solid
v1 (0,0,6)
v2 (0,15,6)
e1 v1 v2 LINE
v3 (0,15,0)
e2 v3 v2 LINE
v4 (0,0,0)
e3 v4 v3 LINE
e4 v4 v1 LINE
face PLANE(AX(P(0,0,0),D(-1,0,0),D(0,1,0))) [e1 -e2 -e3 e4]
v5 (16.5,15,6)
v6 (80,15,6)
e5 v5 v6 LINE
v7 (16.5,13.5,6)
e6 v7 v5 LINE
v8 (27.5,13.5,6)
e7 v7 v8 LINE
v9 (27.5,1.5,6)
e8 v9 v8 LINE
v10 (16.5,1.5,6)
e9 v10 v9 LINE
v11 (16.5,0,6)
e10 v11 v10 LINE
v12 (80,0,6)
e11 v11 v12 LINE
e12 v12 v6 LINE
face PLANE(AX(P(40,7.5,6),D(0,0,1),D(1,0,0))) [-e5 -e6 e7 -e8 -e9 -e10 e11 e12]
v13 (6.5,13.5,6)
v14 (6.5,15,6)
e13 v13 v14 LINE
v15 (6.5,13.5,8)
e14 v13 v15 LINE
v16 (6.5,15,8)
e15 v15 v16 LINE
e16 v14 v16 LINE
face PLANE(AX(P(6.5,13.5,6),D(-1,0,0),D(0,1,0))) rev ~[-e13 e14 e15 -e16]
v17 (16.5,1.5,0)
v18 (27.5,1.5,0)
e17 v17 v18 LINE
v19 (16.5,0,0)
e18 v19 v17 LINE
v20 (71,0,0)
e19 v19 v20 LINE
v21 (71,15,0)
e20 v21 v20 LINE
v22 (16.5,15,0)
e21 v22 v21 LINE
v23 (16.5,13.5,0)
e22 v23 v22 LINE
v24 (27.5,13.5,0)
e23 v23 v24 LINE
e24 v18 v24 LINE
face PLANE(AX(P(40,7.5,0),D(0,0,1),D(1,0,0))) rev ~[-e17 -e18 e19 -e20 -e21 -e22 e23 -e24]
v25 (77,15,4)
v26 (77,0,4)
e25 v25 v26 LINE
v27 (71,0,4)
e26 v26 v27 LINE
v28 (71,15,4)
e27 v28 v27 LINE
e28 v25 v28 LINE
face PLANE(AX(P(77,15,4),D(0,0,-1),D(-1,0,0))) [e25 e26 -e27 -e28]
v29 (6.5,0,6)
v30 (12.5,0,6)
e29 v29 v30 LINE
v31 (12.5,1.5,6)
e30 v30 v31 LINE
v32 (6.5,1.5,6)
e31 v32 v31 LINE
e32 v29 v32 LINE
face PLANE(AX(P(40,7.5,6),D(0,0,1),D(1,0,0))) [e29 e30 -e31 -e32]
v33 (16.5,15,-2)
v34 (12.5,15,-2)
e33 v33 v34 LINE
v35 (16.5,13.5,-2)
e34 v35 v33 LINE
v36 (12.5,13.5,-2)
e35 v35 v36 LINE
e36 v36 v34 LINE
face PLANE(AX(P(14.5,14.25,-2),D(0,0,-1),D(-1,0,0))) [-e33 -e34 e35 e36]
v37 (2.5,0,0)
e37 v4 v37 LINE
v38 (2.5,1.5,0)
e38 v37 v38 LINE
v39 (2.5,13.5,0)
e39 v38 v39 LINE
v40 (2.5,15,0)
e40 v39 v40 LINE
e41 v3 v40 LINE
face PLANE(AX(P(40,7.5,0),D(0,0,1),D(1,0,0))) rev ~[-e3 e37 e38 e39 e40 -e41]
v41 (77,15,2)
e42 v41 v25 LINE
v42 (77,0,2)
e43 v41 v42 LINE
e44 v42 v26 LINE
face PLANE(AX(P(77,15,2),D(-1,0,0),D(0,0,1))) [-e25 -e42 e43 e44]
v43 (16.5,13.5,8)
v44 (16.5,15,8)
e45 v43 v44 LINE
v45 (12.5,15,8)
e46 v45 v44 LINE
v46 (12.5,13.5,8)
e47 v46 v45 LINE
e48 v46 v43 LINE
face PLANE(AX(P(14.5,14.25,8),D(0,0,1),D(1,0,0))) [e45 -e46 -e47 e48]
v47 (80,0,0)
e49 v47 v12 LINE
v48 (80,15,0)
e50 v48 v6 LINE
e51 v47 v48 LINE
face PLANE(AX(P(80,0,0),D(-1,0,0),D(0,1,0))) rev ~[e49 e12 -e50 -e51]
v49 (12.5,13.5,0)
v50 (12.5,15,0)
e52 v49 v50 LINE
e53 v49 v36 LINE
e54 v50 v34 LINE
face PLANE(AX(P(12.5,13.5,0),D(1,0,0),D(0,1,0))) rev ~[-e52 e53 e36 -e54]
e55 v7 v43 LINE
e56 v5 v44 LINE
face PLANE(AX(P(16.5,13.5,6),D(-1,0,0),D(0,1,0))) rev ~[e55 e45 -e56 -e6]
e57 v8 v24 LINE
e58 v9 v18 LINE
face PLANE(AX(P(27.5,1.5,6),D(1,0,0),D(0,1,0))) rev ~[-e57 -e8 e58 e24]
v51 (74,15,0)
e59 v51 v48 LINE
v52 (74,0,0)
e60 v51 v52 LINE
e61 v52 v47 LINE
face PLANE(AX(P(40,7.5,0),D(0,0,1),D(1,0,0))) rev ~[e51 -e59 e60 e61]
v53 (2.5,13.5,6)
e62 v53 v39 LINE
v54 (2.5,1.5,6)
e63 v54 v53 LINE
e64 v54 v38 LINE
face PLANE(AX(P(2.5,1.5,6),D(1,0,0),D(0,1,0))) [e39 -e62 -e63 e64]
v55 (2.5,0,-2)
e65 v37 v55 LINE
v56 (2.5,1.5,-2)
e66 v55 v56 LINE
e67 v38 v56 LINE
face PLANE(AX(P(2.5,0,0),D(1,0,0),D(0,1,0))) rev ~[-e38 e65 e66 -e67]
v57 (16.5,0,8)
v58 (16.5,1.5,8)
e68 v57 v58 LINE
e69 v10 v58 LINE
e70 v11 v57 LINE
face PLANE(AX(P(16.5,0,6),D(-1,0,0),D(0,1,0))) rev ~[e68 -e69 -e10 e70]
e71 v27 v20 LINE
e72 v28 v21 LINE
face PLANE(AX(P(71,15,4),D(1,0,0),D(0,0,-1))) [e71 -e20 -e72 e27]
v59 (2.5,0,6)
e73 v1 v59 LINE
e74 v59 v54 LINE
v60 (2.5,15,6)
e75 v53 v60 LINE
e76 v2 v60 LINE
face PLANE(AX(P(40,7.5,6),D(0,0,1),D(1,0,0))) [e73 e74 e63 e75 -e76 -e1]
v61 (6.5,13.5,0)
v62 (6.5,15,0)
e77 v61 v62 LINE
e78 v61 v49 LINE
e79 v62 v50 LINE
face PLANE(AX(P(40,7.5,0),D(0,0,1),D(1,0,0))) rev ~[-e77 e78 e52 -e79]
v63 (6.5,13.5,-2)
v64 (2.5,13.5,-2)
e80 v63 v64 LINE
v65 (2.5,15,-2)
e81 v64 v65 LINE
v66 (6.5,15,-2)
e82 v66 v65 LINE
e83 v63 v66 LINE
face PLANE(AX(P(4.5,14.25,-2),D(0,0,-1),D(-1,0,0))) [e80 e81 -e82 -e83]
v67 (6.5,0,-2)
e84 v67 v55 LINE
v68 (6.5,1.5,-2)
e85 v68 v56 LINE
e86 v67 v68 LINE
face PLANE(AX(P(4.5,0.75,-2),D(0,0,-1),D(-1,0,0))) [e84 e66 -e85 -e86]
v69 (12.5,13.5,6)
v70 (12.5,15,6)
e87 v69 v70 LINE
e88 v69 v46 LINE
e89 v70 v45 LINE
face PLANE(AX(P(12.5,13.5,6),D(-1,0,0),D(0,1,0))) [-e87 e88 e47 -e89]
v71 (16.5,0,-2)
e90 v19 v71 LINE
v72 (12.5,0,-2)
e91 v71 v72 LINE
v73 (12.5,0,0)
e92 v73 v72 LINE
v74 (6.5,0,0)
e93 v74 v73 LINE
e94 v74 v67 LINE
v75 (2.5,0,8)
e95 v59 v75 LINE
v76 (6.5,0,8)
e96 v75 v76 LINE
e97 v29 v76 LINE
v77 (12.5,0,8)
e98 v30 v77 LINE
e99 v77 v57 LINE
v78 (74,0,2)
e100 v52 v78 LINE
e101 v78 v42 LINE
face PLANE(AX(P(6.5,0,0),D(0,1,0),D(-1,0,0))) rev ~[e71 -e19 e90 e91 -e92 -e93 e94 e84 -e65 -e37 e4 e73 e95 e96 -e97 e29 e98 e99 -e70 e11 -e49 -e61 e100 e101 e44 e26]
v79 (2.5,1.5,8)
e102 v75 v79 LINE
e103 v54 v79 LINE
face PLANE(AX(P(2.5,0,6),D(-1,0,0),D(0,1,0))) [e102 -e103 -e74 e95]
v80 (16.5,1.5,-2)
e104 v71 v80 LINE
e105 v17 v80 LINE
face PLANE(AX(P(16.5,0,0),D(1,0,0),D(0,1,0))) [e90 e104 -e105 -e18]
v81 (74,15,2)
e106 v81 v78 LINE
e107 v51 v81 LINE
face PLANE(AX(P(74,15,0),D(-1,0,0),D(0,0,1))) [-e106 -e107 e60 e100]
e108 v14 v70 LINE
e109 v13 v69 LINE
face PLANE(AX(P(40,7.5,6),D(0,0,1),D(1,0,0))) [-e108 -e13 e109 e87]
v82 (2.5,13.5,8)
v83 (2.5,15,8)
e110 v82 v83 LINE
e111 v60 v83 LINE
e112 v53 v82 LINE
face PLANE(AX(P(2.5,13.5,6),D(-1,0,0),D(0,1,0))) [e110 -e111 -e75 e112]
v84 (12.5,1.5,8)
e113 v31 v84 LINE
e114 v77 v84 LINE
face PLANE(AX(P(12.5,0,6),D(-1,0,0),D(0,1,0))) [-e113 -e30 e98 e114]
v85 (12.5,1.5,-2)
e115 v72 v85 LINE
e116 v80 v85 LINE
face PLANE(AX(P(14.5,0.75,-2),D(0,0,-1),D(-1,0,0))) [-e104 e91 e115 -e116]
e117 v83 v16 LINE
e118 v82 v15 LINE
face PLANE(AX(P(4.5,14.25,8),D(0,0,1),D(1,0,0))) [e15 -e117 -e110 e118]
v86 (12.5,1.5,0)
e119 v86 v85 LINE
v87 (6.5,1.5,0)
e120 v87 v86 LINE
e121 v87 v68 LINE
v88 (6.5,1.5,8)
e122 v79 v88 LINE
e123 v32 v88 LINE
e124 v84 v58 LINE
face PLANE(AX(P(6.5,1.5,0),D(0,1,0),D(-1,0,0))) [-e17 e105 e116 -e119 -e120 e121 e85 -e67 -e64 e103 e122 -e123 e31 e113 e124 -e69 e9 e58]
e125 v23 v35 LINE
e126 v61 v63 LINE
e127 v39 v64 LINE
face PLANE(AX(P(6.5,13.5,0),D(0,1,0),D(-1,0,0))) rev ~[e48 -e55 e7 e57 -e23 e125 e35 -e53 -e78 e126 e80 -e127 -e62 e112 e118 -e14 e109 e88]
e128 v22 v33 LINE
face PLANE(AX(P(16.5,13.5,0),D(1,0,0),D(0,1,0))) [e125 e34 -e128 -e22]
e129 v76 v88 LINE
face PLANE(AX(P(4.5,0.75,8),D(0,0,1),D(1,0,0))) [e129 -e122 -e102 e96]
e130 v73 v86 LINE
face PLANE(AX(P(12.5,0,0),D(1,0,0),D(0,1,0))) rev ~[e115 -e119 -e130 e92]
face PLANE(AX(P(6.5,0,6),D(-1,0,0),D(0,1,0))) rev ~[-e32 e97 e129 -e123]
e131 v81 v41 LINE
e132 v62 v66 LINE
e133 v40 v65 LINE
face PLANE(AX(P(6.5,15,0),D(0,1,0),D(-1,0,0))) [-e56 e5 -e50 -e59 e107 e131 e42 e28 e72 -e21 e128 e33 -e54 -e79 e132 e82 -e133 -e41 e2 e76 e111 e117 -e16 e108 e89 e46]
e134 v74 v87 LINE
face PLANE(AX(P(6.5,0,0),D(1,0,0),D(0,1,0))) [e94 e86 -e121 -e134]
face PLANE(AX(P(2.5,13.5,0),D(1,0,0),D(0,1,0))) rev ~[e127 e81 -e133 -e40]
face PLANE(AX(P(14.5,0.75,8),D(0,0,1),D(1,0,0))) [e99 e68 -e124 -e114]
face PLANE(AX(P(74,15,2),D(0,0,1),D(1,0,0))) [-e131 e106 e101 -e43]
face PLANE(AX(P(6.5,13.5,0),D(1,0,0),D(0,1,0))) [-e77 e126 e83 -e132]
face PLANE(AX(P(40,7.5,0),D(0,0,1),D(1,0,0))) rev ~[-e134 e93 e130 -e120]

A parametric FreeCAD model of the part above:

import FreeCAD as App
import Part
import Sketcher

V = App.Vector


def add_polygon(sketch, points):
    """Adds a closed chain of lines whose ends are joined by coincident constraints."""
    first, n = sketch.GeometryCount, len(points)
    for a, b in zip(points, points[1:] + points[:1]):
        sketch.addGeometry(Part.LineSegment(App.Vector(*a, 0), App.Vector(*b, 0)), False)
    for i in range(n):
        sketch.addConstraint(Sketcher.Constraint("Coincident", first + i, 2, first + (i + 1) % n, 1))

doc = App.newDocument("Part")
params = doc.addObject("Spreadsheet::Sheet", "Params")
for row, (alias, value) in enumerate([
    ("sketch1_width", "80 mm"),
    ("sketch1_height", "15 mm"),
    ("pad1_length", "6 mm"),
    ("sketch2_width", "3 mm"),
    ("sketch2_height", "2 mm"),
    ("sketch3_width", "25 mm"),
    ("sketch3_height", "12 mm"),
    ("sketch4_width", "4 mm"),
    ("sketch4_height", "1.5 mm"),
    ("pad2_length", "2 mm"),
    ("sketch5_width", "4 mm"),
    ("sketch5_height", "1.5 mm"),
    ("pad3_length", "2 mm"),
    ("sketch6_width", "4 mm"),
    ("sketch6_height", "1.5 mm"),
    ("pad4_length", "2 mm"),
    ("sketch7_width", "4 mm"),
    ("sketch7_height", "1.5 mm"),
    ("pad5_length", "2 mm"),
    ("sketch8_width", "4 mm"),
    ("sketch8_height", "1.5 mm"),
    ("pad6_length", "2 mm"),
    ("sketch9_width", "4 mm"),
    ("sketch9_height", "1.5 mm"),
    ("pad7_length", "2 mm"),
    ("sketch10_width", "4 mm"),
    ("sketch10_height", "1.5 mm"),
    ("pad8_length", "2 mm"),
    ("sketch11_width", "4 mm"),
    ("sketch11_height", "1.5 mm"),
    ("pad9_length", "2 mm"),
], start=1):
    params.set(f"A{row}", alias)
    params.set(f"B{row}", "=" + value)
    params.setAlias(f"B{row}", alias)

body = doc.addObject("PartDesign::Body", "Body")

sketch1 = doc.addObject("Sketcher::SketchObject", "Sketch")
body.addObject(sketch1)
sketch1.AttachmentSupport = (doc.XY_Plane, [""])
sketch1.MapMode = "FlatFace"
add_polygon(sketch1, [(0, 15), (0, 0), (80, 0), (80, 15)])
sketch1.addConstraint([
    Sketcher.Constraint("Vertical", 0),
    Sketcher.Constraint("Horizontal", 1),
    Sketcher.Constraint("Vertical", 2),
    Sketcher.Constraint("Horizontal", 3),
    Sketcher.Constraint("Coincident", 0, 2, -1, 1),
    Sketcher.Constraint("DistanceX", 1, 1, 1, 2, 80.0),
    Sketcher.Constraint("DistanceY", 0, 2, 0, 1, 15.0),
])
sketch1.setExpression("Constraints[9]", "Params.sketch1_width")
sketch1.setExpression("Constraints[10]", "Params.sketch1_height")
pad1 = doc.addObject("PartDesign::Pad", "Pad")
body.addObject(pad1)
pad1.Profile = sketch1
pad1.setExpression("Length", "Params.pad1_length")

sketch2 = doc.addObject("Sketcher::SketchObject", "Sketch001")
body.addObject(sketch2)
sketch2.AttachmentSupport = (doc.XZ_Plane, [""])
sketch2.MapMode = "FlatFace"
sketch2.AttachmentOffset = App.Placement(V(0, 0, -15), App.Rotation())
add_polygon(sketch2, [(74, 2), (74, 0), (71, 0), (71, 4), (77, 4), (77, 2)])
sketch2.addConstraint([
    Sketcher.Constraint("Vertical", 0),
    Sketcher.Constraint("Horizontal", 1),
    Sketcher.Constraint("Vertical", 2),
    Sketcher.Constraint("Horizontal", 3),
    Sketcher.Constraint("Vertical", 4),
    Sketcher.Constraint("Horizontal", 5),
    Sketcher.Constraint("PointOnObject", 0, 2, -1),
    Sketcher.Constraint("Equal", 1, 5),
    Sketcher.Constraint("Equal", 0, 4),
    Sketcher.Constraint("DistanceX", 1, 2, 1, 1, 3.0),
    Sketcher.Constraint("DistanceY", 0, 2, 0, 1, 2.0),
    Sketcher.Constraint("DistanceX", -1, 1, 0, 2, 74.0),
])
sketch2.setExpression("Constraints[15]", "Params.sketch2_width")
sketch2.setExpression("Constraints[16]", "Params.sketch2_height")
pocket1 = doc.addObject("PartDesign::Pocket", "Pocket")
body.addObject(pocket1)
pocket1.Profile = sketch2
pocket1.Type = "ThroughAll"
pocket1.Reversed = True

sketch3 = doc.addObject("Sketcher::SketchObject", "Sketch002")
body.addObject(sketch3)
sketch3.AttachmentSupport = (doc.XY_Plane, [""])
sketch3.MapMode = "FlatFace"
sketch3.AttachmentOffset = App.Placement(V(0, 0, 6), App.Rotation())
add_polygon(sketch3, [(2.5, 13.5), (2.5, 1.5), (27.5, 1.5), (27.5, 13.5)])
sketch3.addConstraint([
    Sketcher.Constraint("Vertical", 0),
    Sketcher.Constraint("Horizontal", 1),
    Sketcher.Constraint("Vertical", 2),
    Sketcher.Constraint("Horizontal", 3),
    Sketcher.Constraint("DistanceX", 1, 1, 1, 2, 25.0),
    Sketcher.Constraint("DistanceY", 0, 2, 0, 1, 12.0),
    Sketcher.Constraint("DistanceX", -1, 1, 0, 2, 2.5),
    Sketcher.Constraint("DistanceY", -1, 1, 0, 2, 1.5),
])
sketch3.setExpression("Constraints[8]", "Params.sketch3_width")
sketch3.setExpression("Constraints[9]", "Params.sketch3_height")
pocket2 = doc.addObject("PartDesign::Pocket", "Pocket001")
body.addObject(pocket2)
pocket2.Profile = sketch3
pocket2.Type = "ThroughAll"

sketch4 = doc.addObject("Sketcher::SketchObject", "Sketch003")
body.addObject(sketch4)
sketch4.AttachmentSupport = (doc.XY_Plane, [""])
sketch4.MapMode = "FlatFace"
sketch4.AttachmentOffset = App.Placement(V(0, 0, 6), App.Rotation())
add_polygon(sketch4, [(2.5, 15), (2.5, 13.5), (6.5, 13.5), (6.5, 15)])
sketch4.addConstraint([
    Sketcher.Constraint("Vertical", 0),
    Sketcher.Constraint("Horizontal", 1),
    Sketcher.Constraint("Vertical", 2),
    Sketcher.Constraint("Horizontal", 3),
    Sketcher.Constraint("DistanceX", 1, 1, 1, 2, 4.0),
    Sketcher.Constraint("DistanceY", 0, 2, 0, 1, 1.5),
    Sketcher.Constraint("DistanceY", -1, 1, 2, 2, 15.0),
    Sketcher.Constraint("DistanceX", -1, 1, 0, 2, 2.5),
])
sketch4.setExpression("Constraints[8]", "Params.sketch4_width")
sketch4.setExpression("Constraints[9]", "Params.sketch4_height")
pad2 = doc.addObject("PartDesign::Pad", "Pad001")
body.addObject(pad2)
pad2.Profile = sketch4
pad2.setExpression("Length", "Params.pad2_length")

sketch5 = doc.addObject("Sketcher::SketchObject", "Sketch004")
body.addObject(sketch5)
sketch5.AttachmentSupport = (doc.XY_Plane, [""])
sketch5.MapMode = "FlatFace"
sketch5.AttachmentOffset = App.Placement(V(0, 0, 6), App.Rotation())
add_polygon(sketch5, [(12.5, 15), (12.5, 13.5), (16.5, 13.5), (16.5, 15)])
sketch5.addConstraint([
    Sketcher.Constraint("Vertical", 0),
    Sketcher.Constraint("Horizontal", 1),
    Sketcher.Constraint("Vertical", 2),
    Sketcher.Constraint("Horizontal", 3),
    Sketcher.Constraint("DistanceX", 1, 1, 1, 2, 4.0),
    Sketcher.Constraint("DistanceY", 0, 2, 0, 1, 1.5),
    Sketcher.Constraint("DistanceY", -1, 1, 2, 2, 15.0),
    Sketcher.Constraint("DistanceX", -1, 1, 0, 2, 12.5),
])
sketch5.setExpression("Constraints[8]", "Params.sketch5_width")
sketch5.setExpression("Constraints[9]", "Params.sketch5_height")
pad3 = doc.addObject("PartDesign::Pad", "Pad002")
body.addObject(pad3)
pad3.Profile = sketch5
pad3.setExpression("Length", "Params.pad3_length")

sketch6 = doc.addObject("Sketcher::SketchObject", "Sketch005")
body.addObject(sketch6)
sketch6.AttachmentSupport = (doc.XY_Plane, [""])
sketch6.MapMode = "FlatFace"
sketch6.AttachmentOffset = App.Placement(V(0, 0, 6), App.Rotation())
add_polygon(sketch6, [(2.5, 1.5), (2.5, 0), (6.5, 0), (6.5, 1.5)])
sketch6.addConstraint([
    Sketcher.Constraint("Vertical", 0),
    Sketcher.Constraint("Horizontal", 1),
    Sketcher.Constraint("Vertical", 2),
    Sketcher.Constraint("Horizontal", 3),
    Sketcher.Constraint("PointOnObject", 0, 2, -1),
    Sketcher.Constraint("DistanceX", 1, 1, 1, 2, 4.0),
    Sketcher.Constraint("DistanceY", 0, 2, 0, 1, 1.5),
    Sketcher.Constraint("DistanceX", -1, 1, 0, 2, 2.5),
])
sketch6.setExpression("Constraints[9]", "Params.sketch6_width")
sketch6.setExpression("Constraints[10]", "Params.sketch6_height")
pad4 = doc.addObject("PartDesign::Pad", "Pad003")
body.addObject(pad4)
pad4.Profile = sketch6
pad4.setExpression("Length", "Params.pad4_length")

sketch7 = doc.addObject("Sketcher::SketchObject", "Sketch006")
body.addObject(sketch7)
sketch7.AttachmentSupport = (doc.XY_Plane, [""])
sketch7.MapMode = "FlatFace"
sketch7.AttachmentOffset = App.Placement(V(0, 0, 6), App.Rotation())
add_polygon(sketch7, [(12.5, 1.5), (12.5, 0), (16.5, 0), (16.5, 1.5)])
sketch7.addConstraint([
    Sketcher.Constraint("Vertical", 0),
    Sketcher.Constraint("Horizontal", 1),
    Sketcher.Constraint("Vertical", 2),
    Sketcher.Constraint("Horizontal", 3),
    Sketcher.Constraint("PointOnObject", 0, 2, -1),
    Sketcher.Constraint("DistanceX", 1, 1, 1, 2, 4.0),
    Sketcher.Constraint("DistanceY", 0, 2, 0, 1, 1.5),
    Sketcher.Constraint("DistanceX", -1, 1, 0, 2, 12.5),
])
sketch7.setExpression("Constraints[9]", "Params.sketch7_width")
sketch7.setExpression("Constraints[10]", "Params.sketch7_height")
pad5 = doc.addObject("PartDesign::Pad", "Pad004")
body.addObject(pad5)
pad5.Profile = sketch7
pad5.setExpression("Length", "Params.pad5_length")

sketch8 = doc.addObject("Sketcher::SketchObject", "Sketch007")
body.addObject(sketch8)
sketch8.AttachmentSupport = (doc.XY_Plane, [""])
sketch8.MapMode = "FlatFace"
add_polygon(sketch8, [(6.5, 15), (6.5, 13.5), (2.5, 13.5), (2.5, 15)])
sketch8.addConstraint([
    Sketcher.Constraint("Vertical", 0),
    Sketcher.Constraint("Horizontal", 1),
    Sketcher.Constraint("Vertical", 2),
    Sketcher.Constraint("Horizontal", 3),
    Sketcher.Constraint("DistanceX", 1, 2, 1, 1, 4.0),
    Sketcher.Constraint("DistanceY", 0, 2, 0, 1, 1.5),
    Sketcher.Constraint("DistanceY", -1, 1, 2, 2, 15.0),
    Sketcher.Constraint("DistanceX", -1, 1, 0, 2, 6.5),
])
sketch8.setExpression("Constraints[8]", "Params.sketch8_width")
sketch8.setExpression("Constraints[9]", "Params.sketch8_height")
pad6 = doc.addObject("PartDesign::Pad", "Pad005")
body.addObject(pad6)
pad6.Profile = sketch8
pad6.setExpression("Length", "Params.pad6_length")
pad6.Reversed = True

sketch9 = doc.addObject("Sketcher::SketchObject", "Sketch008")
body.addObject(sketch9)
sketch9.AttachmentSupport = (doc.XY_Plane, [""])
sketch9.MapMode = "FlatFace"
add_polygon(sketch9, [(16.5, 15), (16.5, 13.5), (12.5, 13.5), (12.5, 15)])
sketch9.addConstraint([
    Sketcher.Constraint("Vertical", 0),
    Sketcher.Constraint("Horizontal", 1),
    Sketcher.Constraint("Vertical", 2),
    Sketcher.Constraint("Horizontal", 3),
    Sketcher.Constraint("DistanceX", 1, 2, 1, 1, 4.0),
    Sketcher.Constraint("DistanceY", 0, 2, 0, 1, 1.5),
    Sketcher.Constraint("DistanceY", -1, 1, 2, 2, 15.0),
    Sketcher.Constraint("DistanceX", -1, 1, 0, 2, 16.5),
])
sketch9.setExpression("Constraints[8]", "Params.sketch9_width")
sketch9.setExpression("Constraints[9]", "Params.sketch9_height")
pad7 = doc.addObject("PartDesign::Pad", "Pad006")
body.addObject(pad7)
pad7.Profile = sketch9
pad7.setExpression("Length", "Params.pad7_length")
pad7.Reversed = True

sketch10 = doc.addObject("Sketcher::SketchObject", "Sketch009")
body.addObject(sketch10)
sketch10.AttachmentSupport = (doc.XY_Plane, [""])
sketch10.MapMode = "FlatFace"
add_polygon(sketch10, [(16.5, 1.5), (16.5, 0), (12.5, 0), (12.5, 1.5)])
sketch10.addConstraint([
    Sketcher.Constraint("Vertical", 0),
    Sketcher.Constraint("Horizontal", 1),
    Sketcher.Constraint("Vertical", 2),
    Sketcher.Constraint("Horizontal", 3),
    Sketcher.Constraint("PointOnObject", 0, 2, -1),
    Sketcher.Constraint("DistanceX", 1, 2, 1, 1, 4.0),
    Sketcher.Constraint("DistanceY", 0, 2, 0, 1, 1.5),
    Sketcher.Constraint("DistanceX", -1, 1, 0, 2, 16.5),
])
sketch10.setExpression("Constraints[9]", "Params.sketch10_width")
sketch10.setExpression("Constraints[10]", "Params.sketch10_height")
pad8 = doc.addObject("PartDesign::Pad", "Pad007")
body.addObject(pad8)
pad8.Profile = sketch10
pad8.setExpression("Length", "Params.pad8_length")
pad8.Reversed = True

sketch11 = doc.addObject("Sketcher::SketchObject", "Sketch010")
body.addObject(sketch11)
sketch11.AttachmentSupport = (doc.XY_Plane, [""])
sketch11.MapMode = "FlatFace"
add_polygon(sketch11, [(6.5, 1.5), (6.5, 0), (2.5, 0), (2.5, 1.5)])
add_polygon(sketch11, [(16.5, 1.5), (16.5, 0), (12.5, 0), (12.5, 1.5)])
sketch11.addConstraint([
    Sketcher.Constraint("Vertical", 0),
    Sketcher.Constraint("Horizontal", 1),
    Sketcher.Constraint("Vertical", 2),
    Sketcher.Constraint("Horizontal", 3),
    Sketcher.Constraint("Vertical", 4),
    Sketcher.Constraint("Horizontal", 5),
    Sketcher.Constraint("Vertical", 6),
    Sketcher.Constraint("Horizontal", 7),
    Sketcher.Constraint("PointOnObject", 0, 2, -1),
    Sketcher.Constraint("PointOnObject", 4, 2, -1),
    Sketcher.Constraint("Horizontal", 3, 2, 6, 2),
    Sketcher.Constraint("Equal", 3, 5),
    Sketcher.Constraint("DistanceX", 1, 2, 1, 1, 4.0),
    Sketcher.Constraint("DistanceY", 0, 2, 0, 1, 1.5),
    Sketcher.Constraint("DistanceX", 0, 2, 4, 2, 10.0),
    Sketcher.Constraint("DistanceX", -1, 1, 0, 2, 6.5),
])
sketch11.setExpression("Constraints[20]", "Params.sketch11_width")
sketch11.setExpression("Constraints[21]", "Params.sketch11_height")
pad9 = doc.addObject("PartDesign::Pad", "Pad008")
body.addObject(pad9)
pad9.Profile = sketch11
pad9.setExpression("Length", "Params.pad9_length")
pad9.Reversed = True

doc.recompute()
